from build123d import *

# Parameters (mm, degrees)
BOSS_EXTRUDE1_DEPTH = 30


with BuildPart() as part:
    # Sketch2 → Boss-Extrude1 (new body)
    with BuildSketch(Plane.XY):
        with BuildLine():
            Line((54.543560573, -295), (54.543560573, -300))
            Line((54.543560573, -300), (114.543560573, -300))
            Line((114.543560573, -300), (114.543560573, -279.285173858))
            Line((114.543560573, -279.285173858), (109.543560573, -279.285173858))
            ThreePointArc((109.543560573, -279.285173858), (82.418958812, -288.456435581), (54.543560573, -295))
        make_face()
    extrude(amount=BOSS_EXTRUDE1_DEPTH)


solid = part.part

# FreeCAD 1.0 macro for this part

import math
import FreeCAD as App
import Part
import Sketcher
from FreeCAD import Vector
Q = App.Units.Quantity

doc = App.newDocument("Part")
params = doc.addObject("Spreadsheet::Sheet", "Params")
for row, (alias, value) in enumerate([
    ("sketch1_radius", "300 mm"),
    ("sketch1_width", "60 mm"),
    ("sketch1_width2", "5 mm"),
    ("pad1_length", "30 mm"),
], start=1):
    params.set(f"A{row}", alias)
    params.set(f"B{row}", "=" + value)
    params.setAlias(f"B{row}", alias)

body = doc.addObject("PartDesign::Body", "Body")

# Sketch on XY plane
sketch1 = body.newObject("Sketcher::SketchObject", "Sketch")
sketch1.AttachmentSupport = (doc.getObject("XY_Plane"), [""])
sketch1.MapMode = "FlatFace"
sketch1.addGeometry(Part.LineSegment(Vector(54.543561, -295, 0), Vector(54.543561, -300, 0)), False)
sketch1.addGeometry(Part.LineSegment(Vector(54.543561, -300, 0), Vector(114.543561, -300, 0)), False)
sketch1.addGeometry(Part.LineSegment(Vector(114.543561, -300, 0), Vector(114.543561, -279.285174, 0)), False)
sketch1.addGeometry(Part.LineSegment(Vector(114.543561, -279.285174, 0), Vector(109.543561, -279.285174, 0)), False)
sketch1.addGeometry(Part.ArcOfCircle(Part.Circle(Vector(0, 0, 0), Vector(0, 0, 1), 300), math.radians(-79.524686), math.radians(-68.583481)), False)
sketch1.addConstraint(Sketcher.Constraint("Coincident", 0, 2, 1, 1))
sketch1.addConstraint(Sketcher.Constraint("Coincident", 1, 2, 2, 1))
sketch1.addConstraint(Sketcher.Constraint("Coincident", 2, 2, 3, 1))
sketch1.addConstraint(Sketcher.Constraint("Coincident", 3, 2, 4, 2))
sketch1.addConstraint(Sketcher.Constraint("Coincident", 4, 1, 0, 1))
sketch1.addConstraint(Sketcher.Constraint("Vertical", 0))
sketch1.addConstraint(Sketcher.Constraint("Horizontal", 1))
sketch1.addConstraint(Sketcher.Constraint("Vertical", 2))
sketch1.addConstraint(Sketcher.Constraint("Horizontal", 3))
sketch1.addConstraint(Sketcher.Constraint("Coincident", 4, 3, -1, 1))
sketch1.addConstraint(Sketcher.Constraint("Equal", 3, 0))
sketch1.addConstraint(Sketcher.Constraint("Radius", 4, Q("300 mm")))
sketch1.addConstraint(Sketcher.Constraint("DistanceX", 1, 1, 1, 2, Q("60 mm")))
sketch1.addConstraint(Sketcher.Constraint("DistanceX", 3, 2, 3, 1, Q("5 mm")))
sketch1.addConstraint(Sketcher.Constraint("DistanceY", 0, 2, -1, 1, Q("300 mm")))
sketch1.setExpression("Constraints[11]", "Params.sketch1_radius")
sketch1.setExpression("Constraints[12]", "Params.sketch1_width")
sketch1.setExpression("Constraints[13]", "Params.sketch1_width2")
pad1 = body.newObject("PartDesign::Pad", "Pad")
pad1.Profile = sketch1
pad1.setExpression("Length", "Params.pad1_length")

doc.recompute()
